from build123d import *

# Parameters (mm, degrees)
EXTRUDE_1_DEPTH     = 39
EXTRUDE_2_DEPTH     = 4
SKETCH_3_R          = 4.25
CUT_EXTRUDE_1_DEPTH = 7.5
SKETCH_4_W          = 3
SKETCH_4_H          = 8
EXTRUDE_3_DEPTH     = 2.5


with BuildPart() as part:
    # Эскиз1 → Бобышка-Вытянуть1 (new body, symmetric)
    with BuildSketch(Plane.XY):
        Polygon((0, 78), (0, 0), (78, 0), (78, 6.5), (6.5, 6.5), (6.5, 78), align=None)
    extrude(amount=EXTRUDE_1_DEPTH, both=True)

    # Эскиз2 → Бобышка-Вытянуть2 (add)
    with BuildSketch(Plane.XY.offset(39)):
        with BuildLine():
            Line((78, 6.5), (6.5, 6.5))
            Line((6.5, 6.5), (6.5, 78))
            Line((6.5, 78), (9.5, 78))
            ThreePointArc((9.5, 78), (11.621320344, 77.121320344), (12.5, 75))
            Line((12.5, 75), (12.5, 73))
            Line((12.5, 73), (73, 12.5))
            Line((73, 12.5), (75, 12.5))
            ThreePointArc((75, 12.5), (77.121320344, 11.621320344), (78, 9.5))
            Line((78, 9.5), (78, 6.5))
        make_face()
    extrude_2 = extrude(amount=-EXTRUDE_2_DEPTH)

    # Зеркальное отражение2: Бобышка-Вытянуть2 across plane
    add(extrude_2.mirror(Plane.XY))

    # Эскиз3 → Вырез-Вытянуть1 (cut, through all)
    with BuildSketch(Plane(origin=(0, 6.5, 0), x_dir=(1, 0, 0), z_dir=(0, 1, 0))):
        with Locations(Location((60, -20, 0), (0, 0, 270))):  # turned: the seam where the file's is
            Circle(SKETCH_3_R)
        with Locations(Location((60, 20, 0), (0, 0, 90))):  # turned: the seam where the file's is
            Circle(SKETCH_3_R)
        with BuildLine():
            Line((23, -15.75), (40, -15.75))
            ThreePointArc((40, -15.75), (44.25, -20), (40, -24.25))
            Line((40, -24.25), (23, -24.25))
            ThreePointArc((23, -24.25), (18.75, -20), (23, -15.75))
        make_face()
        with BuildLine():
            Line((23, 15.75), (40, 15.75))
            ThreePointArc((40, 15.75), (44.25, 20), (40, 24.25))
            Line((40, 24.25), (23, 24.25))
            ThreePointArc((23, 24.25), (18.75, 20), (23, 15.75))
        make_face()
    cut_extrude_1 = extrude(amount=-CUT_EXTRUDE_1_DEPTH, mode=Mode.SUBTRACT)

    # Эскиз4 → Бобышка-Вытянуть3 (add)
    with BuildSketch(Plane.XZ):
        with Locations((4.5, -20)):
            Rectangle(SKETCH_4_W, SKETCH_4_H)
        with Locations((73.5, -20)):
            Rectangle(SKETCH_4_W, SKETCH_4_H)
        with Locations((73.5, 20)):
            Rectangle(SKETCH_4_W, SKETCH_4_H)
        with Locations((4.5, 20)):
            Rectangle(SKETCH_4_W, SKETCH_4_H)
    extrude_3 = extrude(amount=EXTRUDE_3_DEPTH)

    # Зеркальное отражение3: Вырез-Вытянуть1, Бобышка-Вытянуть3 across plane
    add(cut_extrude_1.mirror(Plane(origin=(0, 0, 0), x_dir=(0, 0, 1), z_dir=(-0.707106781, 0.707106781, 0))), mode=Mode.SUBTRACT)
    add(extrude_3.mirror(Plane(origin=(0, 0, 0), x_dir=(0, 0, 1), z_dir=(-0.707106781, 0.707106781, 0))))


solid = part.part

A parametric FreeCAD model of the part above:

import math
import FreeCAD as App
import Part
import Sketcher
from FreeCAD import Vector


def add_polygon(sketch, points):
    """Adds a closed chain of lines whose ends are joined by coincident constraints."""
    first, n = sketch.GeometryCount, len(points)
    for a, b in zip(points, points[1:] + points[:1]):
        sketch.addGeometry(Part.LineSegment(App.Vector(*a, 0), App.Vector(*b, 0)), False)
    for i in range(n):
        sketch.addConstraint(Sketcher.Constraint("Coincident", first + i, 2, first + (i + 1) % n, 1))

doc = App.newDocument("Part")
body = doc.addObject("PartDesign::Body", "Body")

sketch1 = doc.addObject("Sketcher::SketchObject", "Sketch")
body.addObject(sketch1)
sketch1.AttachmentSupport = (doc.XY_Plane, [""])
sketch1.MapMode = "FlatFace"
add_polygon(sketch1, [(0, 78), (0, 0), (78, 0), (78, 6), (6, 6), (6, 78)])
sketch1.addConstraint(Sketcher.Constraint("Vertical", 0))
sketch1.addConstraint(Sketcher.Constraint("Horizontal", 1))
sketch1.addConstraint(Sketcher.Constraint("Vertical", 2))
sketch1.addConstraint(Sketcher.Constraint("Horizontal", 3))
sketch1.addConstraint(Sketcher.Constraint("Vertical", 4))
sketch1.addConstraint(Sketcher.Constraint("Horizontal", 5))
sketch1.addConstraint(Sketcher.Constraint("Coincident", 0, 2, -1, 1))
sketch1.addConstraint(Sketcher.Constraint("Equal", 1, 0))
sketch1.addConstraint(Sketcher.Constraint("Equal", 5, 2))
sketch1.addConstraint(Sketcher.Constraint("DistanceX", 1, 1, 1, 2, 78.0))
sketch1.addConstraint(Sketcher.Constraint("DistanceX", 3, 2, 3, 1, 71.5))
pad1 = doc.addObject("PartDesign::Pad", "Pad")
body.addObject(pad1)
pad1.Profile = sketch1
pad1.Length = 78
pad1.Midplane = True

sketch2 = doc.addObject("Sketcher::SketchObject", "Sketch001")
body.addObject(sketch2)
sketch2.AttachmentSupport = (doc.XY_Plane, [""])
sketch2.MapMode = "FlatFace"
sketch2.AttachmentOffset = App.Placement(Vector(0, 0, 39), App.Rotation())
sketch2.addGeometry(Part.LineSegment(Vector(6.5, 6.5, 0), Vector(78, 6.5, 0)), False)
sketch2.addGeometry(Part.LineSegment(Vector(78, 6.5, 0), Vector(78, 9.5, 0)), False)
sketch2.addGeometry(Part.ArcOfCircle(Part.Circle(Vector(75, 9.5, 0), Vector(0, 0, 1), 3), math.radians(0), math.radians(90)), False)
sketch2.addGeometry(Part.LineSegment(Vector(75, 12.5, 0), Vector(73, 12.5, 0)), False)
sketch2.addGeometry(Part.LineSegment(Vector(73, 12.5, 0), Vector(12.5, 73, 0)), False)
sketch2.addGeometry(Part.LineSegment(Vector(12.5, 73, 0), Vector(12.5, 75, 0)), False)
sketch2.addGeometry(Part.ArcOfCircle(Part.Circle(Vector(9.5, 75, 0), Vector(0, 0, 1), 3), math.radians(0), math.radians(90)), False)
sketch2.addGeometry(Part.LineSegment(Vector(9.5, 78, 0), Vector(6.5, 78, 0)), False)
sketch2.addGeometry(Part.LineSegment(Vector(6.5, 78, 0), Vector(6.5, 6.5, 0)), False)
sketch2.addConstraint(Sketcher.Constraint("Coincident", 0, 2, 1, 1))
sketch2.addConstraint(Sketcher.Constraint("Tangent", 1, 2, 2, 1))
sketch2.addConstraint(Sketcher.Constraint("Tangent", 2, 2, 3, 1))
sketch2.addConstraint(Sketcher.Constraint("Coincident", 3, 2, 4, 1))
sketch2.addConstraint(Sketcher.Constraint("Coincident", 4, 2, 5, 1))
sketch2.addConstraint(Sketcher.Constraint("Tangent", 5, 2, 6, 1))
sketch2.addConstraint(Sketcher.Constraint("Tangent", 6, 2, 7, 1))
sketch2.addConstraint(Sketcher.Constraint("Coincident", 7, 2, 8, 1))
sketch2.addConstraint(Sketcher.Constraint("Coincident", 8, 2, 0, 1))
sketch2.addConstraint(Sketcher.Constraint("Horizontal", 0))
sketch2.addConstraint(Sketcher.Constraint("Vertical", 1))
sketch2.addConstraint(Sketcher.Constraint("Horizontal", 3))
sketch2.addConstraint(Sketcher.Constraint("Vertical", 5))
sketch2.addConstraint(Sketcher.Constraint("Horizontal", 7))
sketch2.addConstraint(Sketcher.Constraint("Vertical", 8))
sketch2.addConstraint(Sketcher.Constraint("Equal", 2, 6))
sketch2.addConstraint(Sketcher.Constraint("Equal", 7, 1))
sketch2.addConstraint(Sketcher.Constraint("Equal", 3, 5))
sketch2.addConstraint(Sketcher.Constraint("Equal", 0, 8))
sketch2.addConstraint(Sketcher.Constraint("Radius", 2, 3.0))
sketch2.addConstraint(Sketcher.Constraint("DistanceX", 3, 2, 3, 1, 2.0))
sketch2.addConstraint(Sketcher.Constraint("DistanceX", 7, 2, 7, 1, 3.0))
sketch2.addConstraint(Sketcher.Constraint("DistanceX", 0, 1, 0, 2, 71.5))
sketch2.addConstraint(Sketcher.Constraint("DistanceX", -1, 1, 2, 3, 75.0))
sketch2.addConstraint(Sketcher.Constraint("DistanceY", -1, 1, 6, 3, 75.0))
pad2 = doc.addObject("PartDesign::Pad", "Pad001")
body.addObject(pad2)
pad2.Profile = sketch2
pad2.Length = 4
pad2.Reversed = True
doc.recompute()

mirrored = doc.addObject("PartDesign::Mirrored", "Mirrored")
body.addObject(mirrored)
mirrored.Originals = [pad2]
mirrored.MirrorPlane = (doc.XY_Plane, [""])
body.Tip = mirrored

sketch3 = doc.addObject("Sketcher::SketchObject", "Sketch002")
body.addObject(sketch3)
sketch3.AttachmentSupport = (doc.XZ_Plane, [""])
sketch3.MapMode = "FlatFace"
sketch3.AttachmentOffset = App.Placement(Vector(0, 0, -6.5), App.Rotation())
sketch3.addGeometry(Part.Circle(Vector(60, 20, 0), Vector(0, 0, 1), 4.2), False)
sketch3.addGeometry(Part.Circle(Vector(60, -20, 0), Vector(0, 0, 1), 4.2), False)
sketch3.addGeometry(Part.LineSegment(Vector(40, 15.8, 0), Vector(23, 15.8, 0)), False)
sketch3.addGeometry(Part.ArcOfCircle(Part.Circle(Vector(23, 20, 0), Vector(0, 0, 1), 4.2), math.radians(90), math.radians(270)), False)
sketch3.addGeometry(Part.LineSegment(Vector(23, 24.2, 0), Vector(40, 24.2, 0)), False)
sketch3.addGeometry(Part.ArcOfCircle(Part.Circle(Vector(40, 20, 0), Vector(0, 0, 1), 4.2), math.radians(-90), math.radians(90)), False)
sketch3.addGeometry(Part.LineSegment(Vector(23, -15.8, 0), Vector(40, -15.8, 0)), False)
sketch3.addGeometry(Part.ArcOfCircle(Part.Circle(Vector(40, -20, 0), Vector(0, 0, 1), 4.2), math.radians(-90), math.radians(90)), False)
sketch3.addGeometry(Part.LineSegment(Vector(40, -24.2, 0), Vector(23, -24.2, 0)), False)
sketch3.addGeometry(Part.ArcOfCircle(Part.Circle(Vector(23, -20, 0), Vector(0, 0, 1), 4.2), math.radians(90), math.radians(270)), False)
sketch3.addConstraint(Sketcher.Constraint("Tangent", 2, 2, 3, 2))
sketch3.addConstraint(Sketcher.Constraint("Tangent", 3, 1, 4, 1))
sketch3.addConstraint(Sketcher.Constraint("Tangent", 4, 2, 5, 2))
sketch3.addConstraint(Sketcher.Constraint("Tangent", 5, 1, 2, 1))
sketch3.addConstraint(Sketcher.Constraint("Tangent", 6, 2, 7, 2))
sketch3.addConstraint(Sketcher.Constraint("Tangent", 7, 1, 8, 1))
sketch3.addConstraint(Sketcher.Constraint("Tangent", 8, 2, 9, 2))
sketch3.addConstraint(Sketcher.Constraint("Tangent", 9, 1, 6, 1))
sketch3.addConstraint(Sketcher.Constraint("Horizontal", 2))
sketch3.addConstraint(Sketcher.Constraint("Horizontal", 4))
sketch3.addConstraint(Sketcher.Constraint("Horizontal", 6))
sketch3.addConstraint(Sketcher.Constraint("Horizontal", 8))
sketch3.addConstraint(Sketcher.Constraint("Equal", 0, 1))
sketch3.addConstraint(Sketcher.Constraint("Equal", 1, 3))
sketch3.addConstraint(Sketcher.Constraint("Equal", 5, 7))
sketch3.addConstraint(Sketcher.Constraint("Symmetric", 0, 3, 1, 3, -1))
sketch3.addConstraint(Sketcher.Constraint("Symmetric", 5, 3, 7, 3, -1))
sketch3.addConstraint(Sketcher.Constraint("Horizontal", 0, 3, 3, 3))
sketch3.addConstraint(Sketcher.Constraint("Vertical", 3, 3, 9, 3))
sketch3.addConstraint(Sketcher.Constraint("Diameter", 0, 8.5))
sketch3.addConstraint(Sketcher.Constraint("DistanceX", 2, 2, 2, 1, 17.0))
sketch3.addConstraint(Sketcher.Constraint("DistanceX", -1, 1, 0, 3, 60.0))
sketch3.addConstraint(Sketcher.Constraint("DistanceY", -1, 1, 0, 3, 20.0))
sketch3.addConstraint(Sketcher.Constraint("DistanceX", -1, 1, 3, 3, 23.0))
pocket1 = doc.addObject("PartDesign::Pocket", "Pocket")
body.addObject(pocket1)
pocket1.Profile = sketch3
pocket1.Type = "ThroughAll"
pocket1.Reversed = True

sketch4 = doc.addObject("Sketcher::SketchObject", "Sketch003")
body.addObject(sketch4)
sketch4.AttachmentSupport = (doc.XZ_Plane, [""])
sketch4.MapMode = "FlatFace"
add_polygon(sketch4, [(3, -16), (3, -24), (6, -24), (6, -16)])
add_polygon(sketch4, [(72, -16), (72, -24), (75, -24), (75, -16)])
add_polygon(sketch4, [(72, 24), (72, 16), (75, 16), (75, 24)])
add_polygon(sketch4, [(3, 24), (3, 16), (6, 16), (6, 24)])
sketch4.addConstraint(Sketcher.Constraint("Vertical", 0))
sketch4.addConstraint(Sketcher.Constraint("Horizontal", 1))
sketch4.addConstraint(Sketcher.Constraint("Vertical", 2))
sketch4.addConstraint(Sketcher.Constraint("Horizontal", 3))
sketch4.addConstraint(Sketcher.Constraint("Vertical", 4))
sketch4.addConstraint(Sketcher.Constraint("Horizontal", 5))
sketch4.addConstraint(Sketcher.Constraint("Vertical", 6))
sketch4.addConstraint(Sketcher.Constraint("Horizontal", 7))
sketch4.addConstraint(Sketcher.Constraint("Vertical", 8))
sketch4.addConstraint(Sketcher.Constraint("Horizontal", 9))
sketch4.addConstraint(Sketcher.Constraint("Vertical", 10))
sketch4.addConstraint(Sketcher.Constraint("Horizontal", 11))
sketch4.addConstraint(Sketcher.Constraint("Vertical", 12))
sketch4.addConstraint(Sketcher.Constraint("Horizontal", 13))
sketch4.addConstraint(Sketcher.Constraint("Vertical", 14))
sketch4.addConstraint(Sketcher.Constraint("Horizontal", 15))
sketch4.addConstraint(Sketcher.Constraint("Symmetric", 7, 2, 8, 2, -1))
sketch4.addConstraint(Sketcher.Constraint("Symmetric", 5, 2, 10, 2, -1))
sketch4.addConstraint(Sketcher.Constraint("Symmetric", 3, 2, 12, 2, -1))
sketch4.addConstraint(Sketcher.Constraint("Symmetric", 1, 2, 14, 2, -1))
sketch4.addConstraint(Sketcher.Constraint("Horizontal", 1, 2, 4, 2))
sketch4.addConstraint(Sketcher.Constraint("Horizontal", 3, 2, 6, 2))
sketch4.addConstraint(Sketcher.Constraint("Equal", 3, 5))
sketch4.addConstraint(Sketcher.Constraint("DistanceX", 1, 1, 1, 2, 3.0))
sketch4.addConstraint(Sketcher.Constraint("DistanceY", 0, 2, 0, 1, 8.0))
sketch4.addConstraint(Sketcher.Constraint("DistanceX", -1, 1, 0, 2, 3.0))
sketch4.addConstraint(Sketcher.Constraint("DistanceY", 0, 2, -1, 1, 24.0))
sketch4.addConstraint(Sketcher.Constraint("DistanceX", -1, 1, 4, 2, 72.0))
pad3 = doc.addObject("PartDesign::Pad", "Pad002")
body.addObject(pad3)
pad3.Profile = sketch4
pad3.Length = 2.5
doc.recompute()

datumplane = doc.addObject("PartDesign::Plane", "DatumPlane")
body.addObject(datumplane)
datumplane.Placement = App.Placement(Vector(0, 0, 0), App.Rotation(Vector(0.707106781, 0.707106781, 0), Vector(0, 0, -1), Vector(-0.707106781, 0.707106781, 0), "ZXY"))
mirrored2 = doc.addObject("PartDesign::Mirrored", "Mirrored001")
body.addObject(mirrored2)
mirrored2.Originals = [pocket1, pad3]
mirrored2.MirrorPlane = (datumplane, [""])
body.Tip = mirrored2

doc.recompute()
